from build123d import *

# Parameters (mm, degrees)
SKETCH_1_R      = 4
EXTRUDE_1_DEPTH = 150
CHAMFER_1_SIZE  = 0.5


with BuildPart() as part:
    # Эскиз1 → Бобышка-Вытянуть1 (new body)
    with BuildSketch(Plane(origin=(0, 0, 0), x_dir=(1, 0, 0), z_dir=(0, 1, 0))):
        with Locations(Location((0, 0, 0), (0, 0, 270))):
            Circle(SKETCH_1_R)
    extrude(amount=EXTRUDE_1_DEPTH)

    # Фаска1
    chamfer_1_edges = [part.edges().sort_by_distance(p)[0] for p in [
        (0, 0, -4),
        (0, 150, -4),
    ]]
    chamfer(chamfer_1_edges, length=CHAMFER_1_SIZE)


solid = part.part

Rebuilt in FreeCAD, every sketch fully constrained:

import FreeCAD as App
import Part
import Sketcher
Q = App.Units.Quantity


def edges_at(feature, points):
    """Names of the edges that pass closest to the given points."""
    edges = feature.Shape.Edges
    near = lambda p: min(range(len(edges)), key=lambda i: edges[i].distToShape(Part.Vertex(*p))[0])
    return sorted({f"Edge{near(p) + 1}" for p in points})

doc = App.newDocument("Part")
body = doc.addObject("PartDesign::Body", "Body")

# Sketch on XZ plane
sketch1 = body.newObject("Sketcher::SketchObject", "Sketch")
sketch1.AttachmentSupport = (doc.getObject("XZ_Plane"), [""])
sketch1.MapMode = "FlatFace"
sketch1.addGeometry(Part.Circle(App.Vector(0, 0, 0), App.Vector(0, 0, 1), 4), False)
sketch1.addConstraint([
    Sketcher.Constraint("Coincident", 0, 3, -1, 1),
    Sketcher.Constraint("Diameter", 0, Q("8 mm")),
])
pad1 = body.newObject("PartDesign::Pad", "Pad")
pad1.Profile = sketch1
pad1.Length = 150
pad1.Reversed = True
doc.recompute()

chamfer = body.newObject("PartDesign::Chamfer", "Chamfer")
chamfer.Base = (pad1, edges_at(pad1, [(0, 0, -4), (0, 150, -4)]))
chamfer.Size = 0.5

doc.recompute()
